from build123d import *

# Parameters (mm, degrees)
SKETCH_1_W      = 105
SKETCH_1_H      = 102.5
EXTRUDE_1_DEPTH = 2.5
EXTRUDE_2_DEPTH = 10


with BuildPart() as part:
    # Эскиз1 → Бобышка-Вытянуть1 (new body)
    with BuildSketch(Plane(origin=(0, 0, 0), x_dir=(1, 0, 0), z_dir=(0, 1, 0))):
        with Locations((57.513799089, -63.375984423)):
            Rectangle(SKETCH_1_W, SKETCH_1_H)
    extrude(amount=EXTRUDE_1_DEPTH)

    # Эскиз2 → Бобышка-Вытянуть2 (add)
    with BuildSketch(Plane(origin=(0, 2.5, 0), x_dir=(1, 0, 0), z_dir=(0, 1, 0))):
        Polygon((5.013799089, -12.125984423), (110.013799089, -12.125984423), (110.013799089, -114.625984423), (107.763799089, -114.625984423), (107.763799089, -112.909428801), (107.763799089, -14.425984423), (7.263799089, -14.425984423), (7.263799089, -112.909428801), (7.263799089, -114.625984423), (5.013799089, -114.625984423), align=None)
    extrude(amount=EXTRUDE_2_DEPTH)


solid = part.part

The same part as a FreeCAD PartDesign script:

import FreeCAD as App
import Part
import Sketcher
Q = App.Units.Quantity


def add_polygon(sketch, points):
    """Adds a closed chain of lines whose ends are joined by coincident constraints."""
    first, n = sketch.GeometryCount, len(points)
    for a, b in zip(points, points[1:] + points[:1]):
        sketch.addGeometry(Part.LineSegment(App.Vector(*a, 0), App.Vector(*b, 0)), False)
    for i in range(n):
        sketch.addConstraint(Sketcher.Constraint("Coincident", first + i, 2, first + (i + 1) % n, 1))

doc = App.newDocument("Part")
body = doc.addObject("PartDesign::Body", "Body")

# Sketch on XZ plane
sketch1 = body.newObject("Sketcher::SketchObject", "Sketch")
sketch1.AttachmentSupport = (doc.getObject("XZ_Plane"), [""])
sketch1.MapMode = "FlatFace"
add_polygon(sketch1, [(5.013799, 12.125984), (5.013799, 114.625984), (110.013799, 114.625984), (110.013799, 12.125984)])  # lines 0-3
sketch1.addConstraint(Sketcher.Constraint("Vertical", 0))
sketch1.addConstraint(Sketcher.Constraint("Horizontal", 1))
sketch1.addConstraint(Sketcher.Constraint("Vertical", 2))
sketch1.addConstraint(Sketcher.Constraint("Horizontal", 3))
sketch1.addConstraint(Sketcher.Constraint("DistanceX", 1, 1, 1, 2, Q("105 mm")))
sketch1.addConstraint(Sketcher.Constraint("DistanceY", 0, 1, 0, 2, Q("102.5 mm")))
sketch1.addConstraint(Sketcher.Constraint("DistanceX", -1, 1, 0, 2, Q("5.013799 mm")))
sketch1.addConstraint(Sketcher.Constraint("DistanceY", -1, 1, 0, 2, Q("114.625984 mm")))
pad1 = body.newObject("PartDesign::Pad", "Pad")
pad1.Profile = sketch1
pad1.Length = 2.5
pad1.Reversed = True

# Sketch on XZ plane
sketch2 = body.newObject("Sketcher::SketchObject", "Sketch001")
sketch2.AttachmentSupport = (doc.getObject("XZ_Plane"), [""])
sketch2.MapMode = "FlatFace"
sketch2.AttachmentOffset = App.Placement(App.Vector(0, 0, -2.5), App.Rotation())
add_polygon(sketch2, [(110.013799, 12.125984), (5.013799, 12.125984), (5.013799, 114.625984), (7.263799, 114.625984), (7.263799, 14.425984), (107.763799, 14.425984), (107.763799, 114.625984), (110.013799, 114.625984)])  # lines 0-7
sketch2.addConstraint(Sketcher.Constraint("Horizontal", 0))
sketch2.addConstraint(Sketcher.Constraint("Vertical", 1))
sketch2.addConstraint(Sketcher.Constraint("Horizontal", 2))
sketch2.addConstraint(Sketcher.Constraint("Vertical", 3))
sketch2.addConstraint(Sketcher.Constraint("Horizontal", 4))
sketch2.addConstraint(Sketcher.Constraint("Vertical", 5))
sketch2.addConstraint(Sketcher.Constraint("Horizontal", 6))
sketch2.addConstraint(Sketcher.Constraint("Vertical", 7))
sketch2.addConstraint(Sketcher.Constraint("Horizontal", 2, 2, 5, 2))
sketch2.addConstraint(Sketcher.Constraint("Equal", 2, 6))
sketch2.addConstraint(Sketcher.Constraint("DistanceX", 0, 2, 0, 1, Q("105 mm")))
sketch2.addConstraint(Sketcher.Constraint("DistanceX", 4, 1, 4, 2, Q("100.5 mm")))
sketch2.addConstraint(Sketcher.Constraint("DistanceY", 1, 1, 1, 2, Q("102.5 mm")))
sketch2.addConstraint(Sketcher.Constraint("DistanceY", 3, 2, 3, 1, Q("100.2 mm")))
sketch2.addConstraint(Sketcher.Constraint("DistanceX", -1, 1, 0, 2, Q("5.013799 mm")))
sketch2.addConstraint(Sketcher.Constraint("DistanceY", -1, 1, 0, 2, Q("12.125984 mm")))
pad2 = body.newObject("PartDesign::Pad", "Pad001")
pad2.Profile = sketch2
pad2.Length = 10
pad2.Reversed = True

doc.recompute()
